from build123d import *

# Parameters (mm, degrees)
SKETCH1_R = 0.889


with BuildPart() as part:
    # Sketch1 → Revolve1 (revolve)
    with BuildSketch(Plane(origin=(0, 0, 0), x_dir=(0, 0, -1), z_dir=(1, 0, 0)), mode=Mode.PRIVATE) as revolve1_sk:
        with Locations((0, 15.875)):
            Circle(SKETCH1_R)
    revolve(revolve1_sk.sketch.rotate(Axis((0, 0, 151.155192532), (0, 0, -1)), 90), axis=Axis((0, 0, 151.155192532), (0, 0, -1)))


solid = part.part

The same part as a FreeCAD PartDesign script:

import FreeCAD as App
import Part
import Sketcher
from FreeCAD import Vector
Q = App.Units.Quantity

doc = App.newDocument("Part")
params = doc.addObject("Spreadsheet::Sheet", "Params")
for row, (alias, value) in enumerate([
    ("sketch1_diameter", "0.07 in"),
    ("revolution_angle", "360 deg"),
], start=1):
    params.set(f"A{row}", alias)
    params.set(f"B{row}", "=" + value)
    params.setAlias(f"B{row}", alias)

body = doc.addObject("PartDesign::Body", "Body")

sketch1 = body.newObject("Sketcher::SketchObject", "Sketch")
sketch1.AttachmentSupport = (doc.getObject("YZ_Plane"), [""])
sketch1.MapMode = "FlatFace"
sketch1.addGeometry(Part.Circle(Vector(15.9, 0, 0), Vector(0, 0, 1), 0.9), False)
sketch1.addConstraint(Sketcher.Constraint("PointOnObject", 0, 3, -1))
sketch1.addConstraint(Sketcher.Constraint("Diameter", 0, Q("0.07 in")))
sketch1.addConstraint(Sketcher.Constraint("DistanceX", -1, 1, 0, 3, Q("0.625 in")))
sketch1.setExpression("Constraints[1]", "Params.sketch1_diameter")
revolution = body.newObject("PartDesign::Revolution", "Revolution")
revolution.Profile = sketch1
revolution.ReferenceAxis = (sketch1, ["V_Axis"])
revolution.setExpression("Angle", "Params.revolution_angle")

doc.recompute()
